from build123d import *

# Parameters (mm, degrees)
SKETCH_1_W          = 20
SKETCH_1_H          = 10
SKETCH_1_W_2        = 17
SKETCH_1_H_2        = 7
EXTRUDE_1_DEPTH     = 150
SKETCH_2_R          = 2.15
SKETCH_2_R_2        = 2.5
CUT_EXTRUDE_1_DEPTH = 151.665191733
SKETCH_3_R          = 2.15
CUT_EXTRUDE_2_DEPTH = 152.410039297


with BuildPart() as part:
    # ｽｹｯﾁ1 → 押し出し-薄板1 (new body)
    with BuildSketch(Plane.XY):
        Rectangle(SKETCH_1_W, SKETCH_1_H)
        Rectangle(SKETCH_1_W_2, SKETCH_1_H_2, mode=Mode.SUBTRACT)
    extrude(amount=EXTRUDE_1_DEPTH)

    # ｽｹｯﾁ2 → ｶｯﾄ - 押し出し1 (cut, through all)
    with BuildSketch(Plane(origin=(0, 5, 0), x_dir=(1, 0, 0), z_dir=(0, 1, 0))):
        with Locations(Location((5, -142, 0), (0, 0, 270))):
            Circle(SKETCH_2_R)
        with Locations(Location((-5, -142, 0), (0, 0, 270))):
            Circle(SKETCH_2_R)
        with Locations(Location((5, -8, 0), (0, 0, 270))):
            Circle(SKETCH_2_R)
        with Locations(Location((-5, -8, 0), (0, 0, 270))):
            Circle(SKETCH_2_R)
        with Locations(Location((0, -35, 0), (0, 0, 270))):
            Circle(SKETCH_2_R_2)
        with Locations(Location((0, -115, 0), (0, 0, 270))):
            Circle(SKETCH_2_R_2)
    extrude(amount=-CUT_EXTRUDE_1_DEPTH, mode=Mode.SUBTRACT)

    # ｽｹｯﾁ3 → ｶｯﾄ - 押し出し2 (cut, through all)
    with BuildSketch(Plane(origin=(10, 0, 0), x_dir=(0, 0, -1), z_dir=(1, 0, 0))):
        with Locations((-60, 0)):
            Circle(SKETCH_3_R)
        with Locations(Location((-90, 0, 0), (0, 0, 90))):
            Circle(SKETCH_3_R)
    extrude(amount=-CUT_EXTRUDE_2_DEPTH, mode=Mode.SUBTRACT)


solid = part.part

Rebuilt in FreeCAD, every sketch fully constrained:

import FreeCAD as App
import Part
import Sketcher
Q = App.Units.Quantity

doc = App.newDocument("Part")
body = doc.addObject("PartDesign::Body", "Body")

sketch1 = body.newObject("Sketcher::SketchObject", "Sketch")
sketch1.AttachmentSupport = (doc.getObject("XY_Plane"), [""])
sketch1.MapMode = "FlatFace"
sketch1.addGeometry(Part.LineSegment(App.Vector(-10, 5, 0), App.Vector(-10, -5, 0)), False)
sketch1.addGeometry(Part.LineSegment(App.Vector(-10, -5, 0), App.Vector(10, -5, 0)), False)
sketch1.addGeometry(Part.LineSegment(App.Vector(10, -5, 0), App.Vector(10, 5, 0)), False)
sketch1.addGeometry(Part.LineSegment(App.Vector(10, 5, 0), App.Vector(-10, 5, 0)), False)
sketch1.addGeometry(Part.LineSegment(App.Vector(8, -4, 0), App.Vector(-8, -4, 0)), False)
sketch1.addGeometry(Part.LineSegment(App.Vector(-8, -4, 0), App.Vector(-8, 4, 0)), False)
sketch1.addGeometry(Part.LineSegment(App.Vector(-8, 4, 0), App.Vector(8, 4, 0)), False)
sketch1.addGeometry(Part.LineSegment(App.Vector(8, 4, 0), App.Vector(8, -4, 0)), False)
sketch1.addConstraint(Sketcher.Constraint("Coincident", 0, 2, 1, 1))
sketch1.addConstraint(Sketcher.Constraint("Coincident", 1, 2, 2, 1))
sketch1.addConstraint(Sketcher.Constraint("Coincident", 2, 2, 3, 1))
sketch1.addConstraint(Sketcher.Constraint("Coincident", 3, 2, 0, 1))
sketch1.addConstraint(Sketcher.Constraint("Coincident", 4, 2, 5, 1))
sketch1.addConstraint(Sketcher.Constraint("Coincident", 5, 2, 6, 1))
sketch1.addConstraint(Sketcher.Constraint("Coincident", 6, 2, 7, 1))
sketch1.addConstraint(Sketcher.Constraint("Coincident", 7, 2, 4, 1))
sketch1.addConstraint(Sketcher.Constraint("Vertical", 0))
sketch1.addConstraint(Sketcher.Constraint("Horizontal", 1))
sketch1.addConstraint(Sketcher.Constraint("Vertical", 2))
sketch1.addConstraint(Sketcher.Constraint("Horizontal", 3))
sketch1.addConstraint(Sketcher.Constraint("Horizontal", 4))
sketch1.addConstraint(Sketcher.Constraint("Vertical", 5))
sketch1.addConstraint(Sketcher.Constraint("Horizontal", 6))
sketch1.addConstraint(Sketcher.Constraint("Vertical", 7))
sketch1.addConstraint(Sketcher.Constraint("Symmetric", 0, 2, 2, 2, -1, 1))
sketch1.addConstraint(Sketcher.Constraint("Symmetric", 4, 2, 6, 2, -1, 1))
sketch1.addConstraint(Sketcher.Constraint("DistanceX", 1, 1, 1, 2, Q("20 mm")))
sketch1.addConstraint(Sketcher.Constraint("DistanceX", 4, 2, 4, 1, Q("17 mm")))
sketch1.addConstraint(Sketcher.Constraint("DistanceY", 0, 2, 0, 1, Q("10 mm")))
sketch1.addConstraint(Sketcher.Constraint("DistanceY", 5, 1, 5, 2, Q("7 mm")))
pad1 = body.newObject("PartDesign::Pad", "Pad")
pad1.Profile = sketch1
pad1.Length = 150

sketch2 = body.newObject("Sketcher::SketchObject", "Sketch001")
sketch2.AttachmentSupport = (doc.getObject("XZ_Plane"), [""])
sketch2.MapMode = "FlatFace"
sketch2.AttachmentOffset = App.Placement(App.Vector(0, 0, -5), App.Rotation())
sketch2.addGeometry(Part.Circle(App.Vector(5, 142, 0), App.Vector(0, 0, 1), 2.1), False)
sketch2.addGeometry(Part.Circle(App.Vector(-5, 142, 0), App.Vector(0, 0, 1), 2.1), False)
sketch2.addGeometry(Part.Circle(App.Vector(5, 8, 0), App.Vector(0, 0, 1), 2.1), False)
sketch2.addGeometry(Part.Circle(App.Vector(-5, 8, 0), App.Vector(0, 0, 1), 2.1), False)
sketch2.addGeometry(Part.Circle(App.Vector(0, 35, 0), App.Vector(0, 0, 1), 2.5), False)
sketch2.addGeometry(Part.Circle(App.Vector(0, 115, 0), App.Vector(0, 0, 1), 2.5), False)
sketch2.addConstraint(Sketcher.Constraint("Equal", 0, 1))
sketch2.addConstraint(Sketcher.Constraint("Equal", 1, 2))
sketch2.addConstraint(Sketcher.Constraint("Equal", 2, 3))
sketch2.addConstraint(Sketcher.Constraint("Equal", 4, 5))
sketch2.addConstraint(Sketcher.Constraint("Symmetric", 0, 3, 1, 3, -2))
sketch2.addConstraint(Sketcher.Constraint("Symmetric", 2, 3, 3, 3, -2))
sketch2.addConstraint(Sketcher.Constraint("PointOnObject", 4, 3, -2))
sketch2.addConstraint(Sketcher.Constraint("PointOnObject", 5, 3, -2))
sketch2.addConstraint(Sketcher.Constraint("Vertical", 0, 3, 2, 3))
sketch2.addConstraint(Sketcher.Constraint("Diameter", 4, Q("5 mm")))
sketch2.addConstraint(Sketcher.Constraint("Diameter", 0, Q("4.3 mm")))
sketch2.addConstraint(Sketcher.Constraint("DistanceX", -1, 1, 0, 3, Q("5 mm")))
sketch2.addConstraint(Sketcher.Constraint("DistanceY", -1, 1, 0, 3, Q("142 mm")))
sketch2.addConstraint(Sketcher.Constraint("DistanceY", -1, 1, 2, 3, Q("8 mm")))
sketch2.addConstraint(Sketcher.Constraint("DistanceY", -1, 1, 4, 3, Q("35 mm")))
sketch2.addConstraint(Sketcher.Constraint("DistanceY", -1, 1, 5, 3, Q("115 mm")))
pocket1 = body.newObject("PartDesign::Pocket", "Pocket")
pocket1.Profile = sketch2
pocket1.Type = "ThroughAll"
pocket1.Reversed = True

sketch3 = body.newObject("Sketcher::SketchObject", "Sketch002")
sketch3.AttachmentSupport = (doc.getObject("YZ_Plane"), [""])
sketch3.MapMode = "FlatFace"
sketch3.AttachmentOffset = App.Placement(App.Vector(0, 0, 10), App.Rotation())
sketch3.addGeometry(Part.Circle(App.Vector(0, 60, 0), App.Vector(0, 0, 1), 2.1), False)
sketch3.addGeometry(Part.Circle(App.Vector(0, 90, 0), App.Vector(0, 0, 1), 2.1), False)
sketch3.addConstraint(Sketcher.Constraint("Equal", 0, 1))
sketch3.addConstraint(Sketcher.Constraint("PointOnObject", 0, 3, -2))
sketch3.addConstraint(Sketcher.Constraint("PointOnObject", 1, 3, -2))
sketch3.addConstraint(Sketcher.Constraint("Diameter", 0, Q("4.3 mm")))
sketch3.addConstraint(Sketcher.Constraint("DistanceY", -1, 1, 0, 3, Q("60 mm")))
sketch3.addConstraint(Sketcher.Constraint("DistanceY", -1, 1, 1, 3, Q("90 mm")))
pocket2 = body.newObject("PartDesign::Pocket", "Pocket001")
pocket2.Profile = sketch3
pocket2.Type = "ThroughAll"

doc.recompute()
